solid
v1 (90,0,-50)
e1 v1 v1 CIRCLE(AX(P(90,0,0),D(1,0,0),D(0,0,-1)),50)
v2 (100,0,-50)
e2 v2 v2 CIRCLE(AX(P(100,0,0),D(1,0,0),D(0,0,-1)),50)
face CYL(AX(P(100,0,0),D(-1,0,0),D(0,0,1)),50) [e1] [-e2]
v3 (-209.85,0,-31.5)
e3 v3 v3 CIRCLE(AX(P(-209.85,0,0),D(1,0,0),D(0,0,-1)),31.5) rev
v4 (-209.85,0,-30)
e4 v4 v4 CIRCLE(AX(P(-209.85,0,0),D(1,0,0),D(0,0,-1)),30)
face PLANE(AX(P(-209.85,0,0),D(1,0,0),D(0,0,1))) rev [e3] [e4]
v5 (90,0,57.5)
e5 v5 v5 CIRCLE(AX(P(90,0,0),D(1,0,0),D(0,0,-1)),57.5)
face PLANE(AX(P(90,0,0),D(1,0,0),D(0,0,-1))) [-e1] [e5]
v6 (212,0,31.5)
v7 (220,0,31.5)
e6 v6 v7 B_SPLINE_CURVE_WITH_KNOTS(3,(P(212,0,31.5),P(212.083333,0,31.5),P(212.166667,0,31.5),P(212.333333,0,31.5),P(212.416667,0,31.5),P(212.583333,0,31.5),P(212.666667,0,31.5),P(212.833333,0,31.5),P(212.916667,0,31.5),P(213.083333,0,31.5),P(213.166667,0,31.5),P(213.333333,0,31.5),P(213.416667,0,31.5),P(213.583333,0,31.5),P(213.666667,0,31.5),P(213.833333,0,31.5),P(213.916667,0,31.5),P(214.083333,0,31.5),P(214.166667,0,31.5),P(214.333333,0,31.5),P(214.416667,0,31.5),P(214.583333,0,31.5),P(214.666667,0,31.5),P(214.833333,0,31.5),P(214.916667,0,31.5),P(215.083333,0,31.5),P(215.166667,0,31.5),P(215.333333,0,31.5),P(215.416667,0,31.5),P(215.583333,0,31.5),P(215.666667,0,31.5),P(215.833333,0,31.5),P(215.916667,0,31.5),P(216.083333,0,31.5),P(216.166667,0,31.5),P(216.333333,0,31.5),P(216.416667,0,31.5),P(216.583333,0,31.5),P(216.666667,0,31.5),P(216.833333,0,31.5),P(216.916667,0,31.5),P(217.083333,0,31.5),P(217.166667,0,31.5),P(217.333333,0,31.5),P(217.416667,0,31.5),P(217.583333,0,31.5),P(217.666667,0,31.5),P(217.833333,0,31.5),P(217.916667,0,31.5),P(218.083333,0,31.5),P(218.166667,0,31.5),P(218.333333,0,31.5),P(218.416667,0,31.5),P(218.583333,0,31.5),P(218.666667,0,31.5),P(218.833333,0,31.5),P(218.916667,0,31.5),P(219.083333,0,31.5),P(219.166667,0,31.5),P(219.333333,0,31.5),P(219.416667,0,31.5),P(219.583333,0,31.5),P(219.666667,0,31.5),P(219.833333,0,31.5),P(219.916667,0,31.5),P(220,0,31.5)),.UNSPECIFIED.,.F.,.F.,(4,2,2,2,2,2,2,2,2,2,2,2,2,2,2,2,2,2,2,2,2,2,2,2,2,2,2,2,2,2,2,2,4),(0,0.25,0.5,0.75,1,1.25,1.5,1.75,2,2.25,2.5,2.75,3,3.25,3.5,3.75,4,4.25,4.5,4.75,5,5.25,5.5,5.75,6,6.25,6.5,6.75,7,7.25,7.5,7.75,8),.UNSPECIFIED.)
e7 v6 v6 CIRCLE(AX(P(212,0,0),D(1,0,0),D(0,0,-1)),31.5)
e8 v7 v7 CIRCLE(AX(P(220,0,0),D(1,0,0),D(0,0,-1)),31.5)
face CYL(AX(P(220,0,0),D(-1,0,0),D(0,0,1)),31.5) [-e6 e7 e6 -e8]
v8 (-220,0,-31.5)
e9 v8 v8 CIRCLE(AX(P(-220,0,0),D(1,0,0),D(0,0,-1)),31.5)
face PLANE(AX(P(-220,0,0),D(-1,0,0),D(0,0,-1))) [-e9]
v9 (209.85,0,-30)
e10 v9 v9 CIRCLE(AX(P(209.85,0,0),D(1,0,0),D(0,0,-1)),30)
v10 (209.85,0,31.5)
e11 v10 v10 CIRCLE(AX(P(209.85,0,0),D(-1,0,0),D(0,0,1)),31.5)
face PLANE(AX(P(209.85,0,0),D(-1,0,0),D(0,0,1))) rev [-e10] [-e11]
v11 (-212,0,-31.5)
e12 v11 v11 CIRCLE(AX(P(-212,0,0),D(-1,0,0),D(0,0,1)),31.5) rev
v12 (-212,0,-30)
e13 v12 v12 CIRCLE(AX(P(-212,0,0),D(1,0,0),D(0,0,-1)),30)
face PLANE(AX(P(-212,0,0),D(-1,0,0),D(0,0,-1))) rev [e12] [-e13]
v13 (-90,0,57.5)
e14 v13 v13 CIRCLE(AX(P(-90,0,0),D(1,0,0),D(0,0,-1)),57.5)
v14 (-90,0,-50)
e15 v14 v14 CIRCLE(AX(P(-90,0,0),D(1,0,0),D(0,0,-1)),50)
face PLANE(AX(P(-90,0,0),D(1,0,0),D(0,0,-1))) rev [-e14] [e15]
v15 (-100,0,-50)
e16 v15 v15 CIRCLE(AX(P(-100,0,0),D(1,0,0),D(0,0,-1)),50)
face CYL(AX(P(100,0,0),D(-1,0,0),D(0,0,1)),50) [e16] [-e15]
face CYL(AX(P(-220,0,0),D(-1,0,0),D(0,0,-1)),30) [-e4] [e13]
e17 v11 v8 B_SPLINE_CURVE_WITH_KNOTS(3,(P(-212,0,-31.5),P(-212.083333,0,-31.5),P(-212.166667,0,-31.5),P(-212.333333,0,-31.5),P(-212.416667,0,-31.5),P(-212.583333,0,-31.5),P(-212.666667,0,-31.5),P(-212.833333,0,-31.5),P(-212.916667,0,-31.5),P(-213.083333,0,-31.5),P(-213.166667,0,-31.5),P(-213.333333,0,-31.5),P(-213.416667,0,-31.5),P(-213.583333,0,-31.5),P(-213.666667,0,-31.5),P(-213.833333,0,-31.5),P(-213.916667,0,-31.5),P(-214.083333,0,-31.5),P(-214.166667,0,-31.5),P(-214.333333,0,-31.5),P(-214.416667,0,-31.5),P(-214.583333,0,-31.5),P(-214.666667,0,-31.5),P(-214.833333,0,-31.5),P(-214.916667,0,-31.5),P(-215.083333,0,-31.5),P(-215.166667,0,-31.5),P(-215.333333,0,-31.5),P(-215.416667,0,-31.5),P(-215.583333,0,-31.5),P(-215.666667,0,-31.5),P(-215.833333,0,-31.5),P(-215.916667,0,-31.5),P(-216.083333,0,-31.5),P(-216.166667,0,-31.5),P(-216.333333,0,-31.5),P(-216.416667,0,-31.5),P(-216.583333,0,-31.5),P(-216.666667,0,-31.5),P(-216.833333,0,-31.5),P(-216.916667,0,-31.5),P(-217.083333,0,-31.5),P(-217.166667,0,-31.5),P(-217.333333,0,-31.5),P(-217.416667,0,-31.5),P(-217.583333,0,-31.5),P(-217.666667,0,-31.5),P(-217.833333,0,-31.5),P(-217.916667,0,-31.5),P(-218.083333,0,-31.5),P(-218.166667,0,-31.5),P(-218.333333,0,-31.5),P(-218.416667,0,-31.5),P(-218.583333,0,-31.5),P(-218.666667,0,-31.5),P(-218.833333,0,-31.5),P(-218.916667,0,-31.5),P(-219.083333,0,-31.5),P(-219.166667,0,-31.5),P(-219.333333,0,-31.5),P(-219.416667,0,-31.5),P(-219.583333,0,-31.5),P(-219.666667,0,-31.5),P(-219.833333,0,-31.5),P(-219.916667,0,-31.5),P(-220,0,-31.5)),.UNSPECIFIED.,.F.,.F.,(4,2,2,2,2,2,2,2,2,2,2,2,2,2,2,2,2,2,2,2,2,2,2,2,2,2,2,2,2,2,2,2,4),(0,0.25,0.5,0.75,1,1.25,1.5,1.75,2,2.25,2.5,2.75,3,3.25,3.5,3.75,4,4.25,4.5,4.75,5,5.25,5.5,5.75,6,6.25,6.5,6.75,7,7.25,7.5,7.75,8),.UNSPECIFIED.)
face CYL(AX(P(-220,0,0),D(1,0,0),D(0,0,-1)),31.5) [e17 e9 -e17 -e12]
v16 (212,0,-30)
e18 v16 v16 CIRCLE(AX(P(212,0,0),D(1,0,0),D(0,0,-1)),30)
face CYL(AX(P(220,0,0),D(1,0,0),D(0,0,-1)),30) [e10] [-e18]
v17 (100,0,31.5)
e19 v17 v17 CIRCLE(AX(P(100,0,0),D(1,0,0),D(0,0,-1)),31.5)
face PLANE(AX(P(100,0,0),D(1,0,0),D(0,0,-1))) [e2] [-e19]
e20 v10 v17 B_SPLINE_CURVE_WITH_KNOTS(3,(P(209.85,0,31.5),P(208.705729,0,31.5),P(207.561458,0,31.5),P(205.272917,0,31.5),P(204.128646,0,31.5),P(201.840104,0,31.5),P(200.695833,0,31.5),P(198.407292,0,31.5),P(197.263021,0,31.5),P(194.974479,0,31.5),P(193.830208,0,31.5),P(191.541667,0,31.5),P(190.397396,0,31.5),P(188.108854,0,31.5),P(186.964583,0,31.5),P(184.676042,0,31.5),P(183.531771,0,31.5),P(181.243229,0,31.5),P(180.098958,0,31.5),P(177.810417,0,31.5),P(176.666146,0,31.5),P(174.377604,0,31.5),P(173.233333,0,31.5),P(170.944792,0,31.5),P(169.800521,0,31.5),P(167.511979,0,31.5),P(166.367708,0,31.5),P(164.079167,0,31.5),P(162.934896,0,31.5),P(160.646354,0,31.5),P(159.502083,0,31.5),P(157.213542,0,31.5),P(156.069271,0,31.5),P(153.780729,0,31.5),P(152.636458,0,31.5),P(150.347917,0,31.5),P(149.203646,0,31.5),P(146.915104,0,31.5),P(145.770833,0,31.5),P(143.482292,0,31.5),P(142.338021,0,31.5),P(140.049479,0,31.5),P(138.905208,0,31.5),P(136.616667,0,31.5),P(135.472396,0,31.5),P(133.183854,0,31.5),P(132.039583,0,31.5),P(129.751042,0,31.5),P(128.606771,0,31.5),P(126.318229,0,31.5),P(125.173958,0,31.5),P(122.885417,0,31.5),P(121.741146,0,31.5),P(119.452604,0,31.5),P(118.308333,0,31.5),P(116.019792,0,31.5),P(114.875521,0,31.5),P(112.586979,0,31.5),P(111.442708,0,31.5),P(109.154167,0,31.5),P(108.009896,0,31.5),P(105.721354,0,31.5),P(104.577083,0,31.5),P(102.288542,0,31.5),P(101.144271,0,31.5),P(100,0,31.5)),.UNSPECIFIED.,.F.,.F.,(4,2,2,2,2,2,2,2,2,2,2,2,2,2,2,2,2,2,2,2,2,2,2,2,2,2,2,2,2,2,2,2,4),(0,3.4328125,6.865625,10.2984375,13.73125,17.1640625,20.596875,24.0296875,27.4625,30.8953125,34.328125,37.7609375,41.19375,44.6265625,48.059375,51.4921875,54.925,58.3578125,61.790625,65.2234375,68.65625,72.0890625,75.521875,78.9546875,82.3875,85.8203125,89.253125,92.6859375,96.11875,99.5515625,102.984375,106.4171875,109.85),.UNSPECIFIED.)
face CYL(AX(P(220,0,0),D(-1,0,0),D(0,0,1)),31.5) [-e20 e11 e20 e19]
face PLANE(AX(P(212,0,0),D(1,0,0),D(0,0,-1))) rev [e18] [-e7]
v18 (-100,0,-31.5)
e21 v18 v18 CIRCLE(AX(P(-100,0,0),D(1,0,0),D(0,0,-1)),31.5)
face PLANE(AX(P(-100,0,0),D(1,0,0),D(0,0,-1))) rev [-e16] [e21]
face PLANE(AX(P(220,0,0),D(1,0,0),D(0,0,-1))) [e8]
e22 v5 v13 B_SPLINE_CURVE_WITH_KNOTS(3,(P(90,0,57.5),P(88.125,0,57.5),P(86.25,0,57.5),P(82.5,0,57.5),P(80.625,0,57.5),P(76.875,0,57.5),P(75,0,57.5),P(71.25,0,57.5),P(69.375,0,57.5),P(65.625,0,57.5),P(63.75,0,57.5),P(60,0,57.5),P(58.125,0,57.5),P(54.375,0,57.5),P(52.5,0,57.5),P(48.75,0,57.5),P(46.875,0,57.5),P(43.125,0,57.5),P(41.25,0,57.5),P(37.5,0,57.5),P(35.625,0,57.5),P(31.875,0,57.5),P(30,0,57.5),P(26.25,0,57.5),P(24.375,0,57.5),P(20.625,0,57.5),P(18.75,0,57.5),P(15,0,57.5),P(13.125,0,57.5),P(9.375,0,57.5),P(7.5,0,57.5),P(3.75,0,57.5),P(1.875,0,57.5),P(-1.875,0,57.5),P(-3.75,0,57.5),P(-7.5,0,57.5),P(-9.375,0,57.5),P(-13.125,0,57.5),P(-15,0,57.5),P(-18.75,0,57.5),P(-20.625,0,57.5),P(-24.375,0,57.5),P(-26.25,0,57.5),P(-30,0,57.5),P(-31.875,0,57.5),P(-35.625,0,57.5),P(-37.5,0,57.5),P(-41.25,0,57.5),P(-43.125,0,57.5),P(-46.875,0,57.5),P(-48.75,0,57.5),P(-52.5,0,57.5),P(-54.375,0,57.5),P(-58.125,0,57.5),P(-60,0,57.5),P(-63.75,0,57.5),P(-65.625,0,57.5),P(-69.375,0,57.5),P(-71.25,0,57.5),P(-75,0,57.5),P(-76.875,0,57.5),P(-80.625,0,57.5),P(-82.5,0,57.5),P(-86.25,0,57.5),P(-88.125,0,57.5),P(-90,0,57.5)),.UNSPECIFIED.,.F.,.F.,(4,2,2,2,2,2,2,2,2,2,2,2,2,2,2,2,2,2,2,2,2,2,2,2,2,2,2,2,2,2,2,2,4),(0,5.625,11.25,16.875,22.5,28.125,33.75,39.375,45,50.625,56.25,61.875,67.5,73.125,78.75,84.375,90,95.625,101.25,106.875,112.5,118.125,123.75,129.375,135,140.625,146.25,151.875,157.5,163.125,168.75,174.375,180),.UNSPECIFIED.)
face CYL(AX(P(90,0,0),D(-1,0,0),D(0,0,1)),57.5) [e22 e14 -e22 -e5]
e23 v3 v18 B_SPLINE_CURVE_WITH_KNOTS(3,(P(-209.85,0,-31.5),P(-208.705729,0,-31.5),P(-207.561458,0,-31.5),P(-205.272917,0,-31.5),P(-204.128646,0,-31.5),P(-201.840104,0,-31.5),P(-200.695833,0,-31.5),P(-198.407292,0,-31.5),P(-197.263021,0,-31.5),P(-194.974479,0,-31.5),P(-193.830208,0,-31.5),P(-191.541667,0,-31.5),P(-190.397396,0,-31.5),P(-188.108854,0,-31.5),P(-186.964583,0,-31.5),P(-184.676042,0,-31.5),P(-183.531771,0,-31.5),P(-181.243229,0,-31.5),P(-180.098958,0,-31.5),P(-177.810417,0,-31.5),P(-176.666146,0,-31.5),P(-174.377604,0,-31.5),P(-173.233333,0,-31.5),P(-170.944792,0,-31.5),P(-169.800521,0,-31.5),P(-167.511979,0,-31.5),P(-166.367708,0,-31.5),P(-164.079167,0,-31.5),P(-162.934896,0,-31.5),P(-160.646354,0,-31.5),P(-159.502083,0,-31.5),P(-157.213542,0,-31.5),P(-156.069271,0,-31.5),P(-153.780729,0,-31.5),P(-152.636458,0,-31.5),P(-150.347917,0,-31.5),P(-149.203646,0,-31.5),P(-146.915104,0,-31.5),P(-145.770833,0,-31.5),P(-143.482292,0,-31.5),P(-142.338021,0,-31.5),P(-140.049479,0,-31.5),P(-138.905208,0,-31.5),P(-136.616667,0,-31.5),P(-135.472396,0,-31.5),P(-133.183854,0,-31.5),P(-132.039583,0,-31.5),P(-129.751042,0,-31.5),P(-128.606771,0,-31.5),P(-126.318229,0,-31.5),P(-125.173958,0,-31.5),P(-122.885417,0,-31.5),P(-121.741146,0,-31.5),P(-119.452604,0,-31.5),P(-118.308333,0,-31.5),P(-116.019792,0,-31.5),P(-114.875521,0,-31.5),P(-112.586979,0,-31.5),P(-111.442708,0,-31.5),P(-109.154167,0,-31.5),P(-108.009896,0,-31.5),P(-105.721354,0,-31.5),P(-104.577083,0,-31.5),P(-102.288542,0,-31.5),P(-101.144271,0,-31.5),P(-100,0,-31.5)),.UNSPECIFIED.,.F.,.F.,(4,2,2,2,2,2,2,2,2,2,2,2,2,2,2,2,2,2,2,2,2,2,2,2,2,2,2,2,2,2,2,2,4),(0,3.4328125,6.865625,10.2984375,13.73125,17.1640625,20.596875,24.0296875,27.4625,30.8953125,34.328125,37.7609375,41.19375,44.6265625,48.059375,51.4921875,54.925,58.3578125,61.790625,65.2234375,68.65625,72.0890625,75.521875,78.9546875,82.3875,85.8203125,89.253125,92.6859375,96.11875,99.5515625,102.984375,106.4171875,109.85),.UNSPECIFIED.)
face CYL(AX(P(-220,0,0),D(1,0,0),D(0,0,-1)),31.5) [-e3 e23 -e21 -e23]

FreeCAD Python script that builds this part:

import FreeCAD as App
import Part
import Sketcher
Q = App.Units.Quantity


def add_polygon(sketch, points):
    """Adds a closed chain of lines whose ends are joined by coincident constraints."""
    first, n = sketch.GeometryCount, len(points)
    for a, b in zip(points, points[1:] + points[:1]):
        sketch.addGeometry(Part.LineSegment(App.Vector(*a, 0), App.Vector(*b, 0)), False)
    for i in range(n):
        sketch.addConstraint(Sketcher.Constraint("Coincident", first + i, 2, first + (i + 1) % n, 1))

doc = App.newDocument("Part")
body = doc.addObject("PartDesign::Body", "Body")

sketch1 = doc.addObject("Sketcher::SketchObject", "Sketch")
body.addObject(sketch1)
sketch1.AttachmentSupport = (doc.YZ_Plane, [""])
sketch1.MapMode = "FlatFace"
sketch1.addGeometry(Part.Circle(App.Vector(0, 0, 0), App.Vector(0, 0, 1), 50), False)
sketch1.addConstraint(Sketcher.Constraint("Coincident", 0, 3, -1, 1))
sketch1.addConstraint(Sketcher.Constraint("Diameter", 0, Q("100 mm")))
pad1 = doc.addObject("PartDesign::Pad", "Pad")
body.addObject(pad1)
pad1.Profile = sketch1
pad1.Length = 200
pad1.Midplane = True

sketch2 = doc.addObject("Sketcher::SketchObject", "Sketch001")
body.addObject(sketch2)
sketch2.AttachmentSupport = (doc.YZ_Plane, [""])
sketch2.MapMode = "FlatFace"
sketch2.addGeometry(Part.Circle(App.Vector(0, 0, 0), App.Vector(0, 0, 1), 57.5), False)
sketch2.addGeometry(Part.Circle(App.Vector(0, 0, 0), App.Vector(0, 0, 1), 50), False)
sketch2.addConstraint(Sketcher.Constraint("Coincident", 0, 3, -1, 1))
sketch2.addConstraint(Sketcher.Constraint("Coincident", 1, 3, -1, 1))
sketch2.addConstraint(Sketcher.Constraint("Diameter", 0, Q("115 mm")))
sketch2.addConstraint(Sketcher.Constraint("Diameter", 1, Q("100 mm")))
pad2 = doc.addObject("PartDesign::Pad", "Pad001")
body.addObject(pad2)
pad2.Profile = sketch2
pad2.Length = 180
pad2.Midplane = True

sketch3 = doc.addObject("Sketcher::SketchObject", "Sketch002")
body.addObject(sketch3)
sketch3.AttachmentSupport = (doc.YZ_Plane, [""])
sketch3.MapMode = "FlatFace"
sketch3.AttachmentOffset = App.Placement(App.Vector(0, 0, 100), App.Rotation())
sketch3.addGeometry(Part.Circle(App.Vector(0, 0, 0), App.Vector(0, 0, 1), 31.5), False)
sketch3.addConstraint(Sketcher.Constraint("Coincident", 0, 3, -1, 1))
sketch3.addConstraint(Sketcher.Constraint("Diameter", 0, Q("63 mm")))
pad3 = doc.addObject("PartDesign::Pad", "Pad002")
body.addObject(pad3)
pad3.Profile = sketch3
pad3.Length = 120

sketch4 = doc.addObject("Sketcher::SketchObject", "Sketch003")
body.addObject(sketch4)
sketch4.AttachmentSupport = (doc.XY_Plane, [""])
sketch4.MapMode = "FlatFace"
add_polygon(sketch4, [(209.85, 35.230499), (209.85, 30), (212, 30), (212, 35.230499)])
sketch4.addConstraint(Sketcher.Constraint("Vertical", 0))
sketch4.addConstraint(Sketcher.Constraint("Horizontal", 1))
sketch4.addConstraint(Sketcher.Constraint("Vertical", 2))
sketch4.addConstraint(Sketcher.Constraint("Horizontal", 3))
sketch4.addConstraint(Sketcher.Constraint("DistanceY", -1, 1, 0, 2, Q("30 mm")))
sketch4.addConstraint(Sketcher.Constraint("DistanceX", -1, 1, 1, 2, Q("212 mm")))
sketch4.addConstraint(Sketcher.Constraint("DistanceX", 1, 1, 1, 2, Q("2.15 mm")))
sketch4.addConstraint(Sketcher.Constraint("DistanceY", 0, 2, 0, 1, Q("5.230499 mm")))
groove = doc.addObject("PartDesign::Groove", "Groove")
body.addObject(groove)
groove.Profile = sketch4
groove.ReferenceAxis = (sketch4, ["H_Axis"])
groove.Angle = 360
doc.recompute()

mirrored = doc.addObject("PartDesign::Mirrored", "Mirrored")
body.addObject(mirrored)
mirrored.Originals = [pad3, groove]
mirrored.MirrorPlane = (doc.YZ_Plane, [""])
body.Tip = mirrored

doc.recompute()
